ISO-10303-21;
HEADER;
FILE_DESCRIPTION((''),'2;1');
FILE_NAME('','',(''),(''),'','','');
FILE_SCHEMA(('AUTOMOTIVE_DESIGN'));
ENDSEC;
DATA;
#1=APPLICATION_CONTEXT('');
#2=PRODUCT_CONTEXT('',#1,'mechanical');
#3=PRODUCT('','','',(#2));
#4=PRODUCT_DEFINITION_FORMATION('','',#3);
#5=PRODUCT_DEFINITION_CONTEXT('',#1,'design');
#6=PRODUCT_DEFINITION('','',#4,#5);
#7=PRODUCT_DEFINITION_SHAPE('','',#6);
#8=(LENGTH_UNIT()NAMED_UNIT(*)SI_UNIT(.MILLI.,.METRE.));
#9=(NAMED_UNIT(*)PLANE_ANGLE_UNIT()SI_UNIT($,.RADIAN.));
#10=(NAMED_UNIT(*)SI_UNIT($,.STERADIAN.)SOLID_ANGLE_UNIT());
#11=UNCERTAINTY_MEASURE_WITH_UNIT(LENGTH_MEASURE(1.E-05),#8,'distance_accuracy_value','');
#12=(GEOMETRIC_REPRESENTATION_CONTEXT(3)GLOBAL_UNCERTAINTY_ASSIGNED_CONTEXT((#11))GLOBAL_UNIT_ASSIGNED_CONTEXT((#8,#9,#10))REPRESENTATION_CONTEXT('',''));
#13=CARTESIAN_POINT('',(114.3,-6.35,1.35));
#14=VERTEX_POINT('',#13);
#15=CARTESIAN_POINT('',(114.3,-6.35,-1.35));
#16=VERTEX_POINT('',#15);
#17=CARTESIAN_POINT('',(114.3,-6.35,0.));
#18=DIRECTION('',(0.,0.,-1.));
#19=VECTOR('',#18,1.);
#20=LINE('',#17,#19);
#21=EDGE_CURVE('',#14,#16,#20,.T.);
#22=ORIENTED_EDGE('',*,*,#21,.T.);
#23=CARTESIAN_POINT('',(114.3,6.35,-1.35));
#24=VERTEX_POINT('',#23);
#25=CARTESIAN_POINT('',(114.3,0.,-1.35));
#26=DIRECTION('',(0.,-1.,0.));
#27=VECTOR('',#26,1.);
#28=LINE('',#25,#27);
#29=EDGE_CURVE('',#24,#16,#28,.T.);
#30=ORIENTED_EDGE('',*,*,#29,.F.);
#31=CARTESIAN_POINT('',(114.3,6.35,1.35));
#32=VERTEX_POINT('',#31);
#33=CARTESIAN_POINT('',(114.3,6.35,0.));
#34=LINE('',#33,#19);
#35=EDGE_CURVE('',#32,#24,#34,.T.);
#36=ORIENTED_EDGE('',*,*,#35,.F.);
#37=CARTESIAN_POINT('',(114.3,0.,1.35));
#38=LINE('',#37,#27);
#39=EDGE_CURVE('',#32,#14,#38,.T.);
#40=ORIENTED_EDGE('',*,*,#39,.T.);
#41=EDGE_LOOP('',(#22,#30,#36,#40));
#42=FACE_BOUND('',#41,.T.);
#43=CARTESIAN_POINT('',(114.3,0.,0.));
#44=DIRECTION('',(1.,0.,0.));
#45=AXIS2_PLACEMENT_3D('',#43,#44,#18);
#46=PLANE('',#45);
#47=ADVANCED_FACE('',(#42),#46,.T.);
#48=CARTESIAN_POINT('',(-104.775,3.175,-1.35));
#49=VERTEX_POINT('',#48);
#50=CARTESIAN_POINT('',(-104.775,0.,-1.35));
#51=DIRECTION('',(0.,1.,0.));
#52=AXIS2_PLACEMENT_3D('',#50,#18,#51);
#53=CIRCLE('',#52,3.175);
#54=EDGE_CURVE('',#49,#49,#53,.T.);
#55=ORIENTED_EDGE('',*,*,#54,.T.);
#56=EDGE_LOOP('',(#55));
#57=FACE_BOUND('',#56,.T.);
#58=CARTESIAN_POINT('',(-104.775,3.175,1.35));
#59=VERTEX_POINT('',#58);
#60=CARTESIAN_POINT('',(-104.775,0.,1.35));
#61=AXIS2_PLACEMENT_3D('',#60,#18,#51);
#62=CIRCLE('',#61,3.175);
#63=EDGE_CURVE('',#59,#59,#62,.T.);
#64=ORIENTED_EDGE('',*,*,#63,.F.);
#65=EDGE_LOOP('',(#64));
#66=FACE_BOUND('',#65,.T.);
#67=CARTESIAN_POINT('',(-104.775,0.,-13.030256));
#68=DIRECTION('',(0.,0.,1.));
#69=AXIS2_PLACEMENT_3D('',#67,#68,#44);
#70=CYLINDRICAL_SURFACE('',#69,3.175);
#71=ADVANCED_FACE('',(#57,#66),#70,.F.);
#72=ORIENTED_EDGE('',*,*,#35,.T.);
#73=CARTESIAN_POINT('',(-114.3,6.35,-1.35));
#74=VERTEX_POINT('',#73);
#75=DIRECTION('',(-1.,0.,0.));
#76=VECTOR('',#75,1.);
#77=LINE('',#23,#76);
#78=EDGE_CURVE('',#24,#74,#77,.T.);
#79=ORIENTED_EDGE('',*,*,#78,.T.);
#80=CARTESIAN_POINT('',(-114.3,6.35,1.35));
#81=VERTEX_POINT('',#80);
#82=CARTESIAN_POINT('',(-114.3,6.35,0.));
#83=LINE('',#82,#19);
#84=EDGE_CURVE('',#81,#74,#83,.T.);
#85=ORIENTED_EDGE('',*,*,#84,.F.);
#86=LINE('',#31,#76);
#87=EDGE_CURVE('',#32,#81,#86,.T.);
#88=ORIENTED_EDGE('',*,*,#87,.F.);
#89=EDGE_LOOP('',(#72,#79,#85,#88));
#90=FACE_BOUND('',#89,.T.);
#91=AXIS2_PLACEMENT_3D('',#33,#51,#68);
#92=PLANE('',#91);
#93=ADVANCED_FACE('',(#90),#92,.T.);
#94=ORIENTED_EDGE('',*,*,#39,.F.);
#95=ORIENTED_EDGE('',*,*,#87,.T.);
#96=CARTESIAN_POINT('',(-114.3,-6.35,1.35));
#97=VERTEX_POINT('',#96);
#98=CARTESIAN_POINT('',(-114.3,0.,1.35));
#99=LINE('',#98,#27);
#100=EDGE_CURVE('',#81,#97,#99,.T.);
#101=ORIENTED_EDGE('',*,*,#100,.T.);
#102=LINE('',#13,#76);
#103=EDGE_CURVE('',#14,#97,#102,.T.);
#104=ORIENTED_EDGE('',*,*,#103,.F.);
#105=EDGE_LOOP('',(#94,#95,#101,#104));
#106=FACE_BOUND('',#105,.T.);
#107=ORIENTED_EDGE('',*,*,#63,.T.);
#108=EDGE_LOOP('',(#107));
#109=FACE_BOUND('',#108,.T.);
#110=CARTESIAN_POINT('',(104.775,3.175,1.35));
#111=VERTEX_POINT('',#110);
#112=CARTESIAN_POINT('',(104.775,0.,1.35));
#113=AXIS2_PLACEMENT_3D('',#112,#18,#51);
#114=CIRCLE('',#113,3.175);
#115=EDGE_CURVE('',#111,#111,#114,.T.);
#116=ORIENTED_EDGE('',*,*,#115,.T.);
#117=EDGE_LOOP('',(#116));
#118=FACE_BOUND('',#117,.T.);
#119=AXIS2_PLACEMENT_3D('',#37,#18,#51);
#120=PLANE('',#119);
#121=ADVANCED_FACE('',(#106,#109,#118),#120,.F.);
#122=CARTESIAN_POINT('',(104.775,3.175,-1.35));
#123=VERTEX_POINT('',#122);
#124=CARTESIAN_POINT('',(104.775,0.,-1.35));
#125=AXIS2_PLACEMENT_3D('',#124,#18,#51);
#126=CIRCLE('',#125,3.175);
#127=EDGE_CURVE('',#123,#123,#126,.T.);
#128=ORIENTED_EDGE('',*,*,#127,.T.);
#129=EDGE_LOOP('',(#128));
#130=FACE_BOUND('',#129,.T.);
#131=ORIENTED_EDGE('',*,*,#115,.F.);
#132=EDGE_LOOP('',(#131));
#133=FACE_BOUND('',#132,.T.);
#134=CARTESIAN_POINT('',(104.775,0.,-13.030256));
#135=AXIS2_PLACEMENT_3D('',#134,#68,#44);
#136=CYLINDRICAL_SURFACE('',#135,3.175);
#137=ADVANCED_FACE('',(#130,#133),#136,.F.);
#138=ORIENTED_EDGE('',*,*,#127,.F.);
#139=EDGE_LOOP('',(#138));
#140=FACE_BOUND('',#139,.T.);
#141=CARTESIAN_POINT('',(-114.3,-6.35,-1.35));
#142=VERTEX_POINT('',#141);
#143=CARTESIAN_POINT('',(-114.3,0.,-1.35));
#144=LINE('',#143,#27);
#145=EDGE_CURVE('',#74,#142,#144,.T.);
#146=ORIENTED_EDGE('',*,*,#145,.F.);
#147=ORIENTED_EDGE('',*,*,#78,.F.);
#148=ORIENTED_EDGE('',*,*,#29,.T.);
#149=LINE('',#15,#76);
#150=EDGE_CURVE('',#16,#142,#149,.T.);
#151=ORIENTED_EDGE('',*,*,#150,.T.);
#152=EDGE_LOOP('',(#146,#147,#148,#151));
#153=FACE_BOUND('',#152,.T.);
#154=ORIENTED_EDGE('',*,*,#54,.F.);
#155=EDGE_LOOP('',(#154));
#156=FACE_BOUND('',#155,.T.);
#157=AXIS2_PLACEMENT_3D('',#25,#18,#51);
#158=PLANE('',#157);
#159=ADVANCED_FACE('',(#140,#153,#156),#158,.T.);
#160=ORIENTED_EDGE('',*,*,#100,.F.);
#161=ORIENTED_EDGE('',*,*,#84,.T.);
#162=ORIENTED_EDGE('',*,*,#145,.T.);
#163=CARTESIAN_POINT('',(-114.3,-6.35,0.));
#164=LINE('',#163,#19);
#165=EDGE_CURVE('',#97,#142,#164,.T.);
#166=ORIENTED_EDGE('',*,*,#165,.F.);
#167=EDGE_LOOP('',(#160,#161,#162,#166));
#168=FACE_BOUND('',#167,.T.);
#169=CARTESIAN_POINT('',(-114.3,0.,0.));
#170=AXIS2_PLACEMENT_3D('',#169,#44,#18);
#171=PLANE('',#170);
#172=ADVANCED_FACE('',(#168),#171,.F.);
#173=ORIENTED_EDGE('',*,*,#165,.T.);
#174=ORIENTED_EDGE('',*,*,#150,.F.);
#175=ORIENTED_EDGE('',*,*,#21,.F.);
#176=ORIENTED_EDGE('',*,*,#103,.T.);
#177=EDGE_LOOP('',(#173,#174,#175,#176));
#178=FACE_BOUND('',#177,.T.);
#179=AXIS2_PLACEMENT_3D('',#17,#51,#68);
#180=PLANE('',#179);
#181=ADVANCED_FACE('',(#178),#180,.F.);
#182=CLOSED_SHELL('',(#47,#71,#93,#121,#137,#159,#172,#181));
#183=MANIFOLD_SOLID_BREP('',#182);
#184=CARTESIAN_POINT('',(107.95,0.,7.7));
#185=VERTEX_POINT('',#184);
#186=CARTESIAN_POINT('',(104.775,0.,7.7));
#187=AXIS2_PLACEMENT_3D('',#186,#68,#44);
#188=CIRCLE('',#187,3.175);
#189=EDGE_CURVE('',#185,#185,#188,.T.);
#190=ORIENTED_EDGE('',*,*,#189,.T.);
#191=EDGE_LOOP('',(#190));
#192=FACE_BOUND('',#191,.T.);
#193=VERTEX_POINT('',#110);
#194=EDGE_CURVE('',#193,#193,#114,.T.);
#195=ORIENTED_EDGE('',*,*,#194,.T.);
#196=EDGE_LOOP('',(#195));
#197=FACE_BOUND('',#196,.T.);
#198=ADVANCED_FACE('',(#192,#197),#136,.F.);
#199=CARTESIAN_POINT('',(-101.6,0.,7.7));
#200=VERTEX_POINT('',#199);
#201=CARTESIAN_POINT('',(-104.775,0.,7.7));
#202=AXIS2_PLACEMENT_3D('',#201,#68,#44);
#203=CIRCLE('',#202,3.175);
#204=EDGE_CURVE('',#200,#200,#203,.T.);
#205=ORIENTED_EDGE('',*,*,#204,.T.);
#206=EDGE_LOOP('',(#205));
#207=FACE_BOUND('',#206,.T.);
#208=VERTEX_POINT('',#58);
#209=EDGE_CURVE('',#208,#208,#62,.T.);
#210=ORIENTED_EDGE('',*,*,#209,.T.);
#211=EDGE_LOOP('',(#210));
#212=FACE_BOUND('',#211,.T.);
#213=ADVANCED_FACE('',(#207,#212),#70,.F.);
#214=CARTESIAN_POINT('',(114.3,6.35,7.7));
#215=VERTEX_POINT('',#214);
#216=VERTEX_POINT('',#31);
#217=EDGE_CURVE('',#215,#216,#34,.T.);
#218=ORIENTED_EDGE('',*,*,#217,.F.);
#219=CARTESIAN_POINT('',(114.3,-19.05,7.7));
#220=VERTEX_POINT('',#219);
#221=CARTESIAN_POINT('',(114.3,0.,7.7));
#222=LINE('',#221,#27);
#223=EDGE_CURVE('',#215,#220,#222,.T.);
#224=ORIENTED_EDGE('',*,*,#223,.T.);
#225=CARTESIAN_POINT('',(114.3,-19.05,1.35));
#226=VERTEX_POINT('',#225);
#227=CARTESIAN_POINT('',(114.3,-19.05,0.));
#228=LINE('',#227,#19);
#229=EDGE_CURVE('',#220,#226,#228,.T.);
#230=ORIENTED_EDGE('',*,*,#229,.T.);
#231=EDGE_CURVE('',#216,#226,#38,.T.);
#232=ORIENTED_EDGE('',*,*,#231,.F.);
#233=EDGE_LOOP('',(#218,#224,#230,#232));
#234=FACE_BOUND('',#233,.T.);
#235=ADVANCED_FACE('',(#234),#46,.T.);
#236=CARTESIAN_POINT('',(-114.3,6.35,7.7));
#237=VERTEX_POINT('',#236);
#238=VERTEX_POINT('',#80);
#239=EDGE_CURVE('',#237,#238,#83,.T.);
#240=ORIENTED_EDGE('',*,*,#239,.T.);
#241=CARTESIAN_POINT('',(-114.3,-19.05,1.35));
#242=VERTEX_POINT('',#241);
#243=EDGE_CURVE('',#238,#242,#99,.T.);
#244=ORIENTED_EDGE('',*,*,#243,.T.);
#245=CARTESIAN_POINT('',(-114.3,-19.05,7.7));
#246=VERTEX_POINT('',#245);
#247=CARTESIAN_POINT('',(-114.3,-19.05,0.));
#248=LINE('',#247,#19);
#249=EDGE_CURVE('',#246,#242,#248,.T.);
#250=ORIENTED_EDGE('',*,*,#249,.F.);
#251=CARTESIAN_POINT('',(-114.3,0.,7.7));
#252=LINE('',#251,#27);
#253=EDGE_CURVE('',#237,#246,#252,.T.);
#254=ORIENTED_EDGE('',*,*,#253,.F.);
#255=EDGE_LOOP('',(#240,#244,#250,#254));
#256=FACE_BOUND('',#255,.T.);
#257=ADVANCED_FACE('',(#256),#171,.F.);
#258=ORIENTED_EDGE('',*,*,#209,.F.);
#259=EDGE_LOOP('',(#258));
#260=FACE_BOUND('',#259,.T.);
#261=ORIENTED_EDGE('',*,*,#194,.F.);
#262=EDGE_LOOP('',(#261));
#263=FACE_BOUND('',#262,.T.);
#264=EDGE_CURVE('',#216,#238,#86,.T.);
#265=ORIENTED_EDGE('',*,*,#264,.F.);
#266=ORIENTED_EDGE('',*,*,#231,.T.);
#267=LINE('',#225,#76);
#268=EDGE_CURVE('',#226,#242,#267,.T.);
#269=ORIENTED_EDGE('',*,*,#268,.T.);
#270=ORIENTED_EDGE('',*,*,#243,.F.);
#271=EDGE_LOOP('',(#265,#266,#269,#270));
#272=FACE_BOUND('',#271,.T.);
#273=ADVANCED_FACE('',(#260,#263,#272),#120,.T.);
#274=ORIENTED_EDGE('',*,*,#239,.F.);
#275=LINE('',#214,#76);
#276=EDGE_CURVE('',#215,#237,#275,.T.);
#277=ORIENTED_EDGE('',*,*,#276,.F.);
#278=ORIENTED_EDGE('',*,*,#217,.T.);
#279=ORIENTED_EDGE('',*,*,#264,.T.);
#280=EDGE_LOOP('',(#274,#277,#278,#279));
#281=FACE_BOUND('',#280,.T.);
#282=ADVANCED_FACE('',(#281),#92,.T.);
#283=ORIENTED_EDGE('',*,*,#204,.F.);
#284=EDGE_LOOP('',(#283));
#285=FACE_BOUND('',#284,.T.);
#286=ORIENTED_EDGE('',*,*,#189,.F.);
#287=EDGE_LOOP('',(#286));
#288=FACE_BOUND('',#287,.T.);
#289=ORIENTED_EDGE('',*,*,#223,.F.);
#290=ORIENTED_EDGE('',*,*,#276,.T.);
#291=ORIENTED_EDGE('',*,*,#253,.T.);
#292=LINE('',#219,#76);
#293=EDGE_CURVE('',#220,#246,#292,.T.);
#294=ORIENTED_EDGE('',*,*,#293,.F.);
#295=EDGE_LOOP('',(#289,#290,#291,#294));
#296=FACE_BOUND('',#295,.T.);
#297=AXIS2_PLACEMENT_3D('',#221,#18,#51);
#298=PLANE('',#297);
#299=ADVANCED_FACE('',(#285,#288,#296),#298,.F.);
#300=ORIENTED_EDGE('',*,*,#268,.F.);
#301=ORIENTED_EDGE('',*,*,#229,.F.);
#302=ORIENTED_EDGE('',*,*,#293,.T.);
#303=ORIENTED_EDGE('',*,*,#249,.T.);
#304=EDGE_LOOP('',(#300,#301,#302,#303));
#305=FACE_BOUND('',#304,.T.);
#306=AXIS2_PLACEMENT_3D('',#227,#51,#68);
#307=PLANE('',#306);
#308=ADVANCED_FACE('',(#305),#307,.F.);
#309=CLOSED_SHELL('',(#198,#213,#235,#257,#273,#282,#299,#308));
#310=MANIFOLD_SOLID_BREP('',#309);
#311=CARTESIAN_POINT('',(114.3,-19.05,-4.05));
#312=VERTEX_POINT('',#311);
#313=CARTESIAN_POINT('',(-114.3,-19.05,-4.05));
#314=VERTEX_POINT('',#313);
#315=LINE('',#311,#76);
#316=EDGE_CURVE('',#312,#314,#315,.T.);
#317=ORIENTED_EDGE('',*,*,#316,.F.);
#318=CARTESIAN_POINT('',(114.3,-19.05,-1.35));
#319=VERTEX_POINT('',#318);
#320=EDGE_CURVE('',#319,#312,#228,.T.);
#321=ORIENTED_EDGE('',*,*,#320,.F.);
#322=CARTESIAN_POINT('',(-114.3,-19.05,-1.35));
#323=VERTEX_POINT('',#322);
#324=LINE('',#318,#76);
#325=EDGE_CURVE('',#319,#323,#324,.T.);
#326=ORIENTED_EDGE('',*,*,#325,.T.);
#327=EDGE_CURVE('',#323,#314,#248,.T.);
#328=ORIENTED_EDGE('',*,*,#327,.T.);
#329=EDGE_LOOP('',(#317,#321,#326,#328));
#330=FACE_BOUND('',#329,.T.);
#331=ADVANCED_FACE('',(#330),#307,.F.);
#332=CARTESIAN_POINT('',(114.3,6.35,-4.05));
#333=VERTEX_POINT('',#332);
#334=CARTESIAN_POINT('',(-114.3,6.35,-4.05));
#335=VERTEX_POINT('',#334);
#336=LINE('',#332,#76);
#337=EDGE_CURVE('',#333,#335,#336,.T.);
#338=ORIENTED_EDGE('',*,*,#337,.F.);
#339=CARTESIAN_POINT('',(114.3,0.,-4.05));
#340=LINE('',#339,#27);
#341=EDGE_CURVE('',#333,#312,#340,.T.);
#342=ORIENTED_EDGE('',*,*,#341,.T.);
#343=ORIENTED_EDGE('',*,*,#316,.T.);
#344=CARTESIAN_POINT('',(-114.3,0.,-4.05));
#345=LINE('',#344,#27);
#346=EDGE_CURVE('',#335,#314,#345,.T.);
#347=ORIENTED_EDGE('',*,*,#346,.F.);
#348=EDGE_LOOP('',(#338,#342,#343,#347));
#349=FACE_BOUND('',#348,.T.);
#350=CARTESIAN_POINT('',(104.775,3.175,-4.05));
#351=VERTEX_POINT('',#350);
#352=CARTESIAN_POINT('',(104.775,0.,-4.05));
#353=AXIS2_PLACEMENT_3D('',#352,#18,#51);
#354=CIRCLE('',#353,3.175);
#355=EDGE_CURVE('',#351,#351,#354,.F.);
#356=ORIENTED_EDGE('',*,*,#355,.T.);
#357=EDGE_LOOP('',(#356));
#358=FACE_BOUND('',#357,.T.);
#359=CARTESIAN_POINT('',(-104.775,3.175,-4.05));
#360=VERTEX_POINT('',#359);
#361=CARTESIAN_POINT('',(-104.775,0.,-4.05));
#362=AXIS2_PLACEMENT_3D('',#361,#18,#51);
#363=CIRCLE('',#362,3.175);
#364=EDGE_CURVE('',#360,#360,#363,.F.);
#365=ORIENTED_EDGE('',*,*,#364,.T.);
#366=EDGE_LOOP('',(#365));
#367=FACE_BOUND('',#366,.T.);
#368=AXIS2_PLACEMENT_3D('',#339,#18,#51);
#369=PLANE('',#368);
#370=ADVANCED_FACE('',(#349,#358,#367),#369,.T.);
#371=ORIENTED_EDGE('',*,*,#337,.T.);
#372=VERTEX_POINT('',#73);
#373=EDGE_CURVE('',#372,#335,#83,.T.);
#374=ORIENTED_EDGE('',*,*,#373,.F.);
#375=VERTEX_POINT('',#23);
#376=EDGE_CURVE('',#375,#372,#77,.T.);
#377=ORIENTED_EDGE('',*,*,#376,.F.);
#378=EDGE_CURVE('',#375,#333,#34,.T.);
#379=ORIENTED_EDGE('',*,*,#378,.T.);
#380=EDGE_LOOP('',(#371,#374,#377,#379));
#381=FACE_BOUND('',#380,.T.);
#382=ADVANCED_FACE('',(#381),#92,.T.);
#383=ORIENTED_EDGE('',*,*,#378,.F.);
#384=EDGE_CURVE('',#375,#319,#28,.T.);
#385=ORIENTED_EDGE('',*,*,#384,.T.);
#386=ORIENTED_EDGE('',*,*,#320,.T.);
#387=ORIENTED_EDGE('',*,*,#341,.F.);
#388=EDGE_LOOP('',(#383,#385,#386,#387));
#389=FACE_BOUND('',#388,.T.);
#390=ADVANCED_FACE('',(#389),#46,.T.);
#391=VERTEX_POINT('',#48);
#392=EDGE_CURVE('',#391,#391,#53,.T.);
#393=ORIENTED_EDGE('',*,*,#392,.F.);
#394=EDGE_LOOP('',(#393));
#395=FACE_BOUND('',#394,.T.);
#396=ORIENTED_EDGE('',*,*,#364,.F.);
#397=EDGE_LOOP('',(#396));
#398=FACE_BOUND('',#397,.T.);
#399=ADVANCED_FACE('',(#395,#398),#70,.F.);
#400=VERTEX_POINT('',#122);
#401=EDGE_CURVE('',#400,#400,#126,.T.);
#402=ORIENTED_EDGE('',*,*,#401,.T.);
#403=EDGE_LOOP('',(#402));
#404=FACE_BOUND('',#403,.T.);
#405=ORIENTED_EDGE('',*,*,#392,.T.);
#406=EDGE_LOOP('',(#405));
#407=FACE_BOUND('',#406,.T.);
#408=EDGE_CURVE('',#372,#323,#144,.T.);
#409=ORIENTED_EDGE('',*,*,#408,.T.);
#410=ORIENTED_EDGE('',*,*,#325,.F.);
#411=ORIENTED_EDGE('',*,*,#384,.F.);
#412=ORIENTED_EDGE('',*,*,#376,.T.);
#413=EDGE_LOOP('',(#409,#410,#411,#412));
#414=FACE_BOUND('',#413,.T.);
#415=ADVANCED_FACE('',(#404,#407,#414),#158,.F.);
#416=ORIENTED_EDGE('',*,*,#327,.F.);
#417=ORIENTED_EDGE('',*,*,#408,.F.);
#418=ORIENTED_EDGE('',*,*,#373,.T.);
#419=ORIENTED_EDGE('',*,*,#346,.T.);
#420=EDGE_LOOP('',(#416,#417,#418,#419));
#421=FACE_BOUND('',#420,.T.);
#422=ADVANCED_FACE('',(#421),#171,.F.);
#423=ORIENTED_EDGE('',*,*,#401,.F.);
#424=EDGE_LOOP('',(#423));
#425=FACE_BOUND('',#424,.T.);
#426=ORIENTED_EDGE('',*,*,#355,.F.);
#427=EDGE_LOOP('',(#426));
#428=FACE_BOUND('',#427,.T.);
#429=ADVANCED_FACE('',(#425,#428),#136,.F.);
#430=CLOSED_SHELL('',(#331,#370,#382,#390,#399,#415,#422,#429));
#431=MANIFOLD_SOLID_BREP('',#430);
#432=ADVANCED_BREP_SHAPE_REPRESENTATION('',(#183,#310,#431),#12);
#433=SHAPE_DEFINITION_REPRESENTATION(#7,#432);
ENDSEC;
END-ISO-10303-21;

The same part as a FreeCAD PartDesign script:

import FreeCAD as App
import Part
import Sketcher
from FreeCAD import Vector
Q = App.Units.Quantity


def add_polygon(sketch, points):
    """Adds a closed chain of lines whose ends are joined by coincident constraints."""
    first, n = sketch.GeometryCount, len(points)
    for a, b in zip(points, points[1:] + points[:1]):
        sketch.addGeometry(Part.LineSegment(App.Vector(*a, 0), App.Vector(*b, 0)), False)
    for i in range(n):
        sketch.addConstraint(Sketcher.Constraint("Coincident", first + i, 2, first + (i + 1) % n, 1))

doc = App.newDocument("Part")
body = doc.addObject("PartDesign::Body", "Body")

# Sketch on YZ plane
sketch1 = doc.addObject("Sketcher::SketchObject", "Sketch")
body.addObject(sketch1)
sketch1.AttachmentSupport = (doc.YZ_Plane, [""])
sketch1.MapMode = "FlatFace"
add_polygon(sketch1, [(6.35, 7.7), (-19.05, 7.7), (-19.05, 1.35), (6.35, 1.35)])  # lines 0-3
sketch1.addConstraint(Sketcher.Constraint("Horizontal", 0))
sketch1.addConstraint(Sketcher.Constraint("Vertical", 1))
sketch1.addConstraint(Sketcher.Constraint("Horizontal", 2))
sketch1.addConstraint(Sketcher.Constraint("Vertical", 3))
sketch1.addConstraint(Sketcher.Constraint("DistanceX", 0, 2, 0, 1, Q("1 in")))
sketch1.addConstraint(Sketcher.Constraint("DistanceY", 1, 2, 1, 1, Q("0.25 in")))
sketch1.addConstraint(Sketcher.Constraint("DistanceX", 0, 2, -1, 1, Q("0.75 in")))
sketch1.addConstraint(Sketcher.Constraint("DistanceY", -1, 1, 0, 2, Q("7.7 mm")))
pad1 = doc.addObject("PartDesign::Pad", "Pad")
body.addObject(pad1)
pad1.Profile = sketch1
pad1.Length = Q("9 in")
pad1.Midplane = True
body2 = doc.addObject("PartDesign::Body", "Body001")

# Sketch on YZ plane
sketch2 = doc.addObject("Sketcher::SketchObject", "Sketch001")
body2.addObject(sketch2)
sketch2.AttachmentSupport = (doc.getObject("YZ_Plane001"), [""])
sketch2.MapMode = "FlatFace"
add_polygon(sketch2, [(6.35, 1.35), (-6.35, 1.35), (-6.35, -1.35), (6.35, -1.35)])  # lines 0-3
sketch2.addConstraint(Sketcher.Constraint("Horizontal", 0))
sketch2.addConstraint(Sketcher.Constraint("Vertical", 1))
sketch2.addConstraint(Sketcher.Constraint("Horizontal", 2))
sketch2.addConstraint(Sketcher.Constraint("Vertical", 3))
sketch2.addConstraint(Sketcher.Constraint("Symmetric", 0, 2, 2, 2, -1, 1))
sketch2.addConstraint(Sketcher.Constraint("DistanceX", 0, 2, 0, 1, Q("0.5 in")))
sketch2.addConstraint(Sketcher.Constraint("DistanceY", 1, 2, 1, 1, Q("2.7 mm")))
pad2 = doc.addObject("PartDesign::Pad", "Pad001")
body2.addObject(pad2)
pad2.Profile = sketch2
pad2.Length = Q("9 in")
pad2.Midplane = True
body3 = doc.addObject("PartDesign::Body", "Body002")

# Sketch on YZ plane
sketch3 = doc.addObject("Sketcher::SketchObject", "Sketch002")
body3.addObject(sketch3)
sketch3.AttachmentSupport = (doc.getObject("YZ_Plane002"), [""])
sketch3.MapMode = "FlatFace"
add_polygon(sketch3, [(6.35, -4.05), (6.35, -1.35), (-19.05, -1.35), (-19.05, -4.05)])  # lines 0-3
sketch3.addConstraint(Sketcher.Constraint("Vertical", 0))
sketch3.addConstraint(Sketcher.Constraint("Horizontal", 1))
sketch3.addConstraint(Sketcher.Constraint("Vertical", 2))
sketch3.addConstraint(Sketcher.Constraint("Horizontal", 3))
sketch3.addConstraint(Sketcher.Constraint("DistanceX", 1, 2, 1, 1, Q("1 in")))
sketch3.addConstraint(Sketcher.Constraint("DistanceX", -1, 1, 0, 2, Q("0.25 in")))
sketch3.addConstraint(Sketcher.Constraint("DistanceY", 0, 1, 0, 2, Q("2.7 mm")))
sketch3.addConstraint(Sketcher.Constraint("DistanceY", 0, 2, -1, 1, Q("1.35 mm")))
pad3 = doc.addObject("PartDesign::Pad", "Pad002")
body3.addObject(pad3)
pad3.Profile = sketch3
pad3.Length = Q("9 in")
pad3.Midplane = True
body4 = doc.addObject("PartDesign::Body", "Body003")
body4.AllowCompound = True

# Sketch on XY plane
sketch4 = doc.addObject("Sketcher::SketchObject", "Sketch003")
body4.addObject(sketch4)
sketch4.AttachmentSupport = (doc.getObject("XY_Plane003"), [""])
sketch4.MapMode = "FlatFace"
sketch4.AttachmentOffset = App.Placement(Vector(0, 0, 7.7), App.Rotation())
sketch4.addGeometry(Part.Circle(Vector(-104.775, 0, 0), Vector(0, 0, 1), 3.175), False)
sketch4.addGeometry(Part.Circle(Vector(104.775, 0, 0), Vector(0, 0, 1), 3.175), False)
sketch4.addConstraint(Sketcher.Constraint("Equal", 0, 1))
sketch4.addConstraint(Sketcher.Constraint("Symmetric", 0, 3, 1, 3, -1, 1))
sketch4.addConstraint(Sketcher.Constraint("PointOnObject", 0, 3, -1))
sketch4.addConstraint(Sketcher.Constraint("Diameter", 0, Q("0.25 in")))
sketch4.addConstraint(Sketcher.Constraint("DistanceX", 0, 3, 1, 3, Q("8.25 in")))
pad4 = doc.addObject("PartDesign::Pad", "Pad003")
body4.addObject(pad4)
pad4.Profile = sketch4
pad4.Length = 11.75
pad4.Reversed = True
doc.recompute()

body5 = doc.addObject("PartDesign::Body", "Body004")
body5.BaseFeature = body4
boolean = doc.addObject("PartDesign::Boolean", "Boolean")
body.addObject(boolean)
boolean.Type = "Cut"
boolean.addObjects([body5])
doc.recompute()

body6 = doc.addObject("PartDesign::Body", "Body005")
body6.BaseFeature = body4
boolean2 = doc.addObject("PartDesign::Boolean", "Boolean001")
body2.addObject(boolean2)
boolean2.Type = "Cut"
boolean2.addObjects([body6])
doc.recompute()

boolean3 = doc.addObject("PartDesign::Boolean", "Boolean002")
body3.addObject(boolean3)
boolean3.Type = "Cut"
boolean3.addObjects([body4])

doc.recompute()
